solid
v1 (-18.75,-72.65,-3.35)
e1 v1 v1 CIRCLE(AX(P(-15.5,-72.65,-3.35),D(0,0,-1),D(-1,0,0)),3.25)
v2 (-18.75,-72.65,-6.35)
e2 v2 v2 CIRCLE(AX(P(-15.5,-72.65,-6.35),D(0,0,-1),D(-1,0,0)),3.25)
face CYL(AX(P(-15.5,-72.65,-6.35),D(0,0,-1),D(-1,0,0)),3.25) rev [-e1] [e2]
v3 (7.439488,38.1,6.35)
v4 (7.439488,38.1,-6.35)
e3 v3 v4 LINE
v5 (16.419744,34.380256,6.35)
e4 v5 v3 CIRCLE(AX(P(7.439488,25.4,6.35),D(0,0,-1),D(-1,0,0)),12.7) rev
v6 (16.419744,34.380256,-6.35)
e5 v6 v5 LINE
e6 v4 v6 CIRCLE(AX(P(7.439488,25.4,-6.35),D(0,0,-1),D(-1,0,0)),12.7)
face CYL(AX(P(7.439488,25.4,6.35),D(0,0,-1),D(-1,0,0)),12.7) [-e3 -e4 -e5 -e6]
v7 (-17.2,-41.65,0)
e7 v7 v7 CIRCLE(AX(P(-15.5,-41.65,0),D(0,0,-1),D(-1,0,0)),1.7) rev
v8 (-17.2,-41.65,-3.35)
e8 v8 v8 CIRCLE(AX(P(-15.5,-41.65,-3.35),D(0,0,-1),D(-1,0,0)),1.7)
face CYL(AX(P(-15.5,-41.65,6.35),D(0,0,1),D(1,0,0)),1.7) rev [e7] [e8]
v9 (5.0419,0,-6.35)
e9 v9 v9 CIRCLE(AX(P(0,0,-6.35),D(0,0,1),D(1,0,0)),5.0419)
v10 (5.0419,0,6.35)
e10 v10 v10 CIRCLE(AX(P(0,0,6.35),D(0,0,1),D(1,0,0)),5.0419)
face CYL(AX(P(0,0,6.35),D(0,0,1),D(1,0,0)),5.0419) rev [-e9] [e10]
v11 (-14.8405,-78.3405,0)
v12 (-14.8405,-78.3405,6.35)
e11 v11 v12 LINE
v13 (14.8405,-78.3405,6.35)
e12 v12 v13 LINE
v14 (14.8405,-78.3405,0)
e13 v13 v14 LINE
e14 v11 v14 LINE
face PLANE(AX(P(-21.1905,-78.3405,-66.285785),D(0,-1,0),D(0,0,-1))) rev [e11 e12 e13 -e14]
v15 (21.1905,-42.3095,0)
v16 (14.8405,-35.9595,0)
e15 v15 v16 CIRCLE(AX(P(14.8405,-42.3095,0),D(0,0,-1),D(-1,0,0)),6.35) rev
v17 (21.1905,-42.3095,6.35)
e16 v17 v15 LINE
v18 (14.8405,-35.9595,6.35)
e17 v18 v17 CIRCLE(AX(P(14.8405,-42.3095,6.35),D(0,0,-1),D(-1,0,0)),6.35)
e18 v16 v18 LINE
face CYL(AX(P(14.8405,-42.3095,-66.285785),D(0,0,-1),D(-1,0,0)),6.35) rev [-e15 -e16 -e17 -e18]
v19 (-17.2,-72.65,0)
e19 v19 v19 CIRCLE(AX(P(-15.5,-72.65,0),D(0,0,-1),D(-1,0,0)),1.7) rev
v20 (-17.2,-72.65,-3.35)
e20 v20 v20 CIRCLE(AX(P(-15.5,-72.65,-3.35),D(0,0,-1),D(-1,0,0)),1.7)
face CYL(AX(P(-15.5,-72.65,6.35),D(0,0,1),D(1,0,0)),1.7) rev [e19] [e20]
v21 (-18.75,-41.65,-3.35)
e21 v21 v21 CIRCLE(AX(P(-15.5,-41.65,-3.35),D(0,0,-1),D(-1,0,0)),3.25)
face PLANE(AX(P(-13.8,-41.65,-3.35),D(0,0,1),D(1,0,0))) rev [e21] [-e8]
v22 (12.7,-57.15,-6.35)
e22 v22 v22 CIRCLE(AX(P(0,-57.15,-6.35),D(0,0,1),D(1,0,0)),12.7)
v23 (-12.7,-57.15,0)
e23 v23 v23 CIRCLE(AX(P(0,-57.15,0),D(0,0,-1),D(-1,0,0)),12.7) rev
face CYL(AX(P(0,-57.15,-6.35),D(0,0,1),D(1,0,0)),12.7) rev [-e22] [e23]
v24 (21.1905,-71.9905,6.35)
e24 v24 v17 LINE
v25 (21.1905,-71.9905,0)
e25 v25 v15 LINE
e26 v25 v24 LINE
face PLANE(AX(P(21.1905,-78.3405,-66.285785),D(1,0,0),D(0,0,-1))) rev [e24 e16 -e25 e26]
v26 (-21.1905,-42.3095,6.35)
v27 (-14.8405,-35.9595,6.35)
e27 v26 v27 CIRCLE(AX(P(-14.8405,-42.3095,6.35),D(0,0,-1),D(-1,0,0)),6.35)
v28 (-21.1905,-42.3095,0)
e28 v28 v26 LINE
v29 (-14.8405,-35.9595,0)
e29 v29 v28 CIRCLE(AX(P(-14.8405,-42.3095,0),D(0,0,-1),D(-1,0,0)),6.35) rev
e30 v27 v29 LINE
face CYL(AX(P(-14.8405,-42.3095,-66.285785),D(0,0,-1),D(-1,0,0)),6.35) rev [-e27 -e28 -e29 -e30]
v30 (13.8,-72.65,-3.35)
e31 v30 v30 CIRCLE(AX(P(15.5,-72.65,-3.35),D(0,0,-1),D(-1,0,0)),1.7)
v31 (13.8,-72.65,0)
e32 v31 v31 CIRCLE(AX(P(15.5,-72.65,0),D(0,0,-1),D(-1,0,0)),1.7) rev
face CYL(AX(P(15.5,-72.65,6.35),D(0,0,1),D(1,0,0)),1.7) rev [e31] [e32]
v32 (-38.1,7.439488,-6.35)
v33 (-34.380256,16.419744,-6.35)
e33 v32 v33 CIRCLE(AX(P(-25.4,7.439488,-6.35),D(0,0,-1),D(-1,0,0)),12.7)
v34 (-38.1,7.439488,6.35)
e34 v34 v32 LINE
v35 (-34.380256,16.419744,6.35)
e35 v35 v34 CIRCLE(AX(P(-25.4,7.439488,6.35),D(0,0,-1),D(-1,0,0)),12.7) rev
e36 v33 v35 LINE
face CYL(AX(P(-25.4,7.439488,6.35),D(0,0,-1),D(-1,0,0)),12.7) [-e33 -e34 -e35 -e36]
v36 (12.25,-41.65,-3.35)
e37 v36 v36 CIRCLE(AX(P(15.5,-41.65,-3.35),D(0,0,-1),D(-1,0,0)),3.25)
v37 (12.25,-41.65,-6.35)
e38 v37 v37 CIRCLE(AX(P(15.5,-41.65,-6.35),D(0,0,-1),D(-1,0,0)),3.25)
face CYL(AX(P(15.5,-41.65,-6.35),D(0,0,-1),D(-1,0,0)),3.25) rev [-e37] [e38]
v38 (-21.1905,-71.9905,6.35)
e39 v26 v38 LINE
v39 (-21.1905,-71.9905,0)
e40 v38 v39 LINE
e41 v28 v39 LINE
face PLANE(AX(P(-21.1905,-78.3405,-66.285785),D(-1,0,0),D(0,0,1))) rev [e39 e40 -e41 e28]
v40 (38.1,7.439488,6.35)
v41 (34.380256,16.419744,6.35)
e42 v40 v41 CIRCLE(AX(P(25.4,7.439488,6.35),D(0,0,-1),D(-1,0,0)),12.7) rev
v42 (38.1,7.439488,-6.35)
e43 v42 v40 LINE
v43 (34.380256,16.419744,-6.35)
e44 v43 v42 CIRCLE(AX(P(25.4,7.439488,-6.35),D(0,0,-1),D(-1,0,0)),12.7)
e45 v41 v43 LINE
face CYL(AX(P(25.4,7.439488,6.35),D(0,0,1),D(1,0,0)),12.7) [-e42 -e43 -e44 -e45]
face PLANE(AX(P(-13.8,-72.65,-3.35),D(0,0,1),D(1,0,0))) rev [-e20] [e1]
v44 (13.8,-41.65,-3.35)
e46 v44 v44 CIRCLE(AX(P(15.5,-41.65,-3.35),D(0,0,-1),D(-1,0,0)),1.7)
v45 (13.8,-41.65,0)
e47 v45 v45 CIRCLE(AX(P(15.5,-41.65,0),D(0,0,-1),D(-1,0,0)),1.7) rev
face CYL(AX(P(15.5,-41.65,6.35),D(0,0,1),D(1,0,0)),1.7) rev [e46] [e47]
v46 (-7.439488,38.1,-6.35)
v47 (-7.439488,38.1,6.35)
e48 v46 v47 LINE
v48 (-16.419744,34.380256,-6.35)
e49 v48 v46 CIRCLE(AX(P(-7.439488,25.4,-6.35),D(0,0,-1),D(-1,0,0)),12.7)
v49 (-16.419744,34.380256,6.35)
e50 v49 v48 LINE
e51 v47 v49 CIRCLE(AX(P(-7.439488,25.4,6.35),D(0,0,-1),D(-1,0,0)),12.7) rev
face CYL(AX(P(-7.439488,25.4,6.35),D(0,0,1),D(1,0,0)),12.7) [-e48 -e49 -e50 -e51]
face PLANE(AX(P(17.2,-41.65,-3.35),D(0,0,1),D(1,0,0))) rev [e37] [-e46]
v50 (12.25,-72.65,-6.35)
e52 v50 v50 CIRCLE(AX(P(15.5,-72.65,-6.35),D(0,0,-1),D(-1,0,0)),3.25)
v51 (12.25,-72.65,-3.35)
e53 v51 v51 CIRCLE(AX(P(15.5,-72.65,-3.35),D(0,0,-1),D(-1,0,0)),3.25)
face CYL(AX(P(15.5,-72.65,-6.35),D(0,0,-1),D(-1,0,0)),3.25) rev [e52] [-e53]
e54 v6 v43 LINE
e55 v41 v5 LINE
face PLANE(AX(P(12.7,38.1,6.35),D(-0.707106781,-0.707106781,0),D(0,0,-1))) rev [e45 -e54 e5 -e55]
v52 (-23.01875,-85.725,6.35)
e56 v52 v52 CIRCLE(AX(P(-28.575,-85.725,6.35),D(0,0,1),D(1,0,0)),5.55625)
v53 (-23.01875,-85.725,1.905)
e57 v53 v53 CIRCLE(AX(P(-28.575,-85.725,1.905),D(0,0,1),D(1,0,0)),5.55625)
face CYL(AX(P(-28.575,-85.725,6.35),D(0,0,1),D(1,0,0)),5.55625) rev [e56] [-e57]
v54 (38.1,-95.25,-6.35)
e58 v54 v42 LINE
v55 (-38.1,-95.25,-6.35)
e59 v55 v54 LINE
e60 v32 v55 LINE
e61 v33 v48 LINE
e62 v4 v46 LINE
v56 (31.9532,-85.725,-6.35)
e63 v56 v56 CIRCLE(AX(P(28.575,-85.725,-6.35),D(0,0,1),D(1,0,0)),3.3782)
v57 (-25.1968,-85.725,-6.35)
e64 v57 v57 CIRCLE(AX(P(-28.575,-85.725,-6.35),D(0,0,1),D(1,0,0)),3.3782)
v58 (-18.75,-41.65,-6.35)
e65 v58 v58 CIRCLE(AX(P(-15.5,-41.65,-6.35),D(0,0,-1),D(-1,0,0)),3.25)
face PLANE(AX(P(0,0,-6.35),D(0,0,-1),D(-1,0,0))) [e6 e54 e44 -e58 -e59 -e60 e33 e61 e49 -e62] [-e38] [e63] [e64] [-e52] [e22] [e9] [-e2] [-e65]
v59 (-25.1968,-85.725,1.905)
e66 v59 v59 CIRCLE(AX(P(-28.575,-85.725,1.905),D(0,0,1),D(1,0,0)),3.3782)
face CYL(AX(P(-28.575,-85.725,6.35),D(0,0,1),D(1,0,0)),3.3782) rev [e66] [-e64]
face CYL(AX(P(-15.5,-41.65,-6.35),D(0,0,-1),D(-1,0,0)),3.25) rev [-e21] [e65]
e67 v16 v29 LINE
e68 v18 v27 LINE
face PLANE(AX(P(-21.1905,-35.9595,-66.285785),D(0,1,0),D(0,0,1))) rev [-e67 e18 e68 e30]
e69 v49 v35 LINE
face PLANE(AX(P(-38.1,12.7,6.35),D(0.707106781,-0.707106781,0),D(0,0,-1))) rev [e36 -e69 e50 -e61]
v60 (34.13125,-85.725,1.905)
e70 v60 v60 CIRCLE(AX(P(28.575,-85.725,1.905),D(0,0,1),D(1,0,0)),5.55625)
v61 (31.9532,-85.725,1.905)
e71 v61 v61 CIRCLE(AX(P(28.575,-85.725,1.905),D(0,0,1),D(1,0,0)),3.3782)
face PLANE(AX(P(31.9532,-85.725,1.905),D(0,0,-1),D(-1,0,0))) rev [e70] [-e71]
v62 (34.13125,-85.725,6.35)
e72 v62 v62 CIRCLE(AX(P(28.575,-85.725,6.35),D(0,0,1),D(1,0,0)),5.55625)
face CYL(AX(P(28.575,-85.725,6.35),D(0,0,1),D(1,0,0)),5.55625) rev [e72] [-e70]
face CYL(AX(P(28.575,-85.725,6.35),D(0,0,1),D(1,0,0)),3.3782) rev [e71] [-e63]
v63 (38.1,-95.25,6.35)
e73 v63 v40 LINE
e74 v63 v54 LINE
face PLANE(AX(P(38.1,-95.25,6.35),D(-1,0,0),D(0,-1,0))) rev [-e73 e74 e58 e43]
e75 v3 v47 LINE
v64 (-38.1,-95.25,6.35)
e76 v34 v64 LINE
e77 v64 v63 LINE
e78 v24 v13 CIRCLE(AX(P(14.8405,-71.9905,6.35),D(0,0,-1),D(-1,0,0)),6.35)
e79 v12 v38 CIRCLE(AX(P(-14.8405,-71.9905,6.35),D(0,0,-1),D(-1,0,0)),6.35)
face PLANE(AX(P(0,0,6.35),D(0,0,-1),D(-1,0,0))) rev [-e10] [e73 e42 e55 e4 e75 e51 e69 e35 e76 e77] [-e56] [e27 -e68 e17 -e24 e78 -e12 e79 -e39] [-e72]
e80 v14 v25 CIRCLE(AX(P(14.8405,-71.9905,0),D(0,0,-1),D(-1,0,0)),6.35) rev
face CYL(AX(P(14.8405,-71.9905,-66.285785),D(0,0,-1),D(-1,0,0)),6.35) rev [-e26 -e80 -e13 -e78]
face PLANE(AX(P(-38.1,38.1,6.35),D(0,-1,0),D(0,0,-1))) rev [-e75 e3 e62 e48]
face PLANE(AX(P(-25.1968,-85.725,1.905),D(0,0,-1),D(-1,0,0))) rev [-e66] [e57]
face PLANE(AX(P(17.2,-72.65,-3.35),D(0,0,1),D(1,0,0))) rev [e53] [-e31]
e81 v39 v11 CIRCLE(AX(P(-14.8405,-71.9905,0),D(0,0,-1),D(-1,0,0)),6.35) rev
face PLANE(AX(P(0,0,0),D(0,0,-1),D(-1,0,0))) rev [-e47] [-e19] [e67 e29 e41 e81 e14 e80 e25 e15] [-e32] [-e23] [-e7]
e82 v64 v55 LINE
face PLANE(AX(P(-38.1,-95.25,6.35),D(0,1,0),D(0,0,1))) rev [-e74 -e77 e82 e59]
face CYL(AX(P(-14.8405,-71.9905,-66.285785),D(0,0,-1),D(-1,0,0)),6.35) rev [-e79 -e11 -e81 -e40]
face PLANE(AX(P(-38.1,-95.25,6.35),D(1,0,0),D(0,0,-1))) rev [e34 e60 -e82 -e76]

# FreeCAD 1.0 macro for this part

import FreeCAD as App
import Part
import Sketcher

V = App.Vector
Q = App.Units.Quantity


def edges_at(feature, points):
    """Names of the edges that pass closest to the given points."""
    edges = feature.Shape.Edges
    near = lambda p: min(range(len(edges)), key=lambda i: edges[i].distToShape(Part.Vertex(*p))[0])
    return sorted({f"Edge{near(p) + 1}" for p in points})


def add_polygon(sketch, points):
    """Adds a closed chain of lines whose ends are joined by coincident constraints."""
    first, n = sketch.GeometryCount, len(points)
    for a, b in zip(points, points[1:] + points[:1]):
        sketch.addGeometry(Part.LineSegment(App.Vector(*a, 0), App.Vector(*b, 0)), False)
    for i in range(n):
        sketch.addConstraint(Sketcher.Constraint("Coincident", first + i, 2, first + (i + 1) % n, 1))

doc = App.newDocument("Part")
params = doc.addObject("Spreadsheet::Sheet", "Params")
for row, (alias, value) in enumerate([
    ("sketch1_width", "3 in"),
    ("sketch1_height", "5.25 in"),
    ("pad1_length", "0.5 in"),
    ("sketch2_diameter", "0.397 in"),
    ("hole_diameter", "0.397 in"),
    ("hole2_diameter", "3.4 mm"),
    ("sketch4_diameter", "1 in"),
    ("pocket2_length", "0.25 in"),
    ("chamfer_size", "1 in"),
    ("sketch6_diameter", "0.266 in"),
    ("hole3_diameter", "0.266 in"),
    ("hole3_cbore_diameter", "0.4375 in"),
    ("hole3_cbore_depth", "0.175 in"),
    ("hole4_diameter", "3.4 mm"),
    ("hole4_cbore_diameter", "6.5 mm"),
    ("hole4_cbore_depth", "3 mm"),
    ("fillet_radius", "0.25 in"),
    ("fillet2_radius", "0.5 in"),
], start=1):
    params.set(f"A{row}", alias)
    params.set(f"B{row}", "=" + value)
    params.setAlias(f"B{row}", alias)

body = doc.addObject("PartDesign::Body", "Body")

# Sketch on XY plane
sketch1 = doc.addObject("Sketcher::SketchObject", "Sketch")
body.addObject(sketch1)
sketch1.AttachmentSupport = (doc.XY_Plane, [""])
sketch1.MapMode = "FlatFace"
add_polygon(sketch1, [(-38, 38), (-38, -95), (38, -95), (38, 38)])  # lines 0-3
sketch1.addConstraint(Sketcher.Constraint("Vertical", 0))
sketch1.addConstraint(Sketcher.Constraint("Horizontal", 1))
sketch1.addConstraint(Sketcher.Constraint("Vertical", 2))
sketch1.addConstraint(Sketcher.Constraint("Horizontal", 3))
sketch1.addConstraint(Sketcher.Constraint("DistanceX", 1, 1, 1, 2, Q("3 in")))
sketch1.addConstraint(Sketcher.Constraint("DistanceY", 0, 2, 0, 1, Q("5.25 in")))
sketch1.addConstraint(Sketcher.Constraint("DistanceX", 0, 2, -1, 1, Q("1.5 in")))
sketch1.addConstraint(Sketcher.Constraint("DistanceY", -1, 1, 2, 2, Q("1.5 in")))
sketch1.setExpression("Constraints[8]", "Params.sketch1_width")
sketch1.setExpression("Constraints[9]", "Params.sketch1_height")
pad1 = doc.addObject("PartDesign::Pad", "Pad")
body.addObject(pad1)
pad1.Profile = sketch1
pad1.setExpression("Length", "Params.pad1_length")
pad1.Midplane = True

# Sketch on XY plane
sketch2 = doc.addObject("Sketcher::SketchObject", "Sketch001")
body.addObject(sketch2)
sketch2.AttachmentSupport = (doc.XY_Plane, [""])
sketch2.MapMode = "FlatFace"
sketch2.AttachmentOffset = App.Placement(V(0, 0, 0.25 * 25.4), App.Rotation())
sketch2.addGeometry(Part.Circle(V(0, 0, 0), V(0, 0, 1), 5), False)
sketch2.addConstraint(Sketcher.Constraint("Coincident", 0, 3, -1, 1))
sketch2.addConstraint(Sketcher.Constraint("Diameter", 0, Q("0.397 in")))
sketch2.setExpression("Constraints[1]", "Params.sketch2_diameter")
doc.recompute()
hole = doc.addObject("PartDesign::Hole", "Hole")
body.addObject(hole)
hole.Profile = sketch2
hole.ThreadType = "None"
hole.setExpression("Diameter", "Params.hole_diameter")
hole.DepthType = "ThroughAll"

# Sketch on XY plane
sketch3 = doc.addObject("Sketcher::SketchObject", "Sketch002")
body.addObject(sketch3)
sketch3.AttachmentSupport = (doc.XY_Plane, [""])
sketch3.MapMode = "FlatFace"
sketch3.AttachmentOffset = App.Placement(V(0, 0, 0.25 * 25.4), App.Rotation())
sketch3.addGeometry(Part.Circle(V(-15.5, -41.6, 0), V(0, 0, 1), 1.7), False)
sketch3.addGeometry(Part.Circle(V(15.5, -41.6, 0), V(0, 0, 1), 1.7), False)
sketch3.addGeometry(Part.Circle(V(15.5, -72.7, 0), V(0, 0, 1), 1.7), False)
sketch3.addGeometry(Part.Circle(V(-15.5, -72.7, 0), V(0, 0, 1), 1.7), False)
sketch3.addConstraint(Sketcher.Constraint("Equal", 0, 1))
sketch3.addConstraint(Sketcher.Constraint("Equal", 1, 2))
sketch3.addConstraint(Sketcher.Constraint("Equal", 2, 3))
sketch3.addConstraint(Sketcher.Constraint("Symmetric", 0, 3, 1, 3, -2))
sketch3.addConstraint(Sketcher.Constraint("Symmetric", 2, 3, 3, 3, -2))
sketch3.addConstraint(Sketcher.Constraint("Vertical", 1, 3, 2, 3))
sketch3.addConstraint(Sketcher.Constraint("Diameter", 0, 3.4))
sketch3.addConstraint(Sketcher.Constraint("DistanceX", 0, 3, -1, 1, 15.5))
sketch3.addConstraint(Sketcher.Constraint("DistanceY", 0, 3, -1, 1, 41.65))
sketch3.addConstraint(Sketcher.Constraint("DistanceY", 2, 3, -1, 1, 72.65))
doc.recompute()
hole2 = doc.addObject("PartDesign::Hole", "Hole001")
body.addObject(hole2)
hole2.Profile = sketch3
hole2.ThreadType = "None"
hole2.setExpression("Diameter", "Params.hole2_diameter")
hole2.DepthType = "ThroughAll"

# Sketch on XY plane
sketch4 = doc.addObject("Sketcher::SketchObject", "Sketch003")
body.addObject(sketch4)
sketch4.AttachmentSupport = (doc.XY_Plane, [""])
sketch4.MapMode = "FlatFace"
sketch4.AttachmentOffset = App.Placement(V(0, 0, 0.25 * 25.4), App.Rotation())
sketch4.addGeometry(Part.Circle(V(0, -57, 0), V(0, 0, 1), 13), False)
sketch4.addConstraint(Sketcher.Constraint("PointOnObject", 0, 3, -2))
sketch4.addConstraint(Sketcher.Constraint("Diameter", 0, Q("1 in")))
sketch4.addConstraint(Sketcher.Constraint("DistanceY", 0, 3, -1, 1, Q("2.25 in")))
sketch4.setExpression("Constraints[1]", "Params.sketch4_diameter")
pocket1 = doc.addObject("PartDesign::Pocket", "Pocket")
body.addObject(pocket1)
pocket1.Profile = sketch4
pocket1.Type = "ThroughAll"

# Sketch on XY plane
sketch5 = doc.addObject("Sketcher::SketchObject", "Sketch004")
body.addObject(sketch5)
sketch5.AttachmentSupport = (doc.XY_Plane, [""])
sketch5.MapMode = "FlatFace"
sketch5.AttachmentOffset = App.Placement(V(0, 0, 0.25 * 25.4), App.Rotation())
add_polygon(sketch5, [(-21, -36), (-21, -78), (21, -78), (21, -36)])  # lines 0-3
sketch5.addConstraint(Sketcher.Constraint("Vertical", 0))
sketch5.addConstraint(Sketcher.Constraint("Horizontal", 1))
sketch5.addConstraint(Sketcher.Constraint("Vertical", 2))
sketch5.addConstraint(Sketcher.Constraint("Horizontal", 3))
sketch5.addConstraint(Sketcher.Constraint("Equal", 3, 0))
sketch5.addConstraint(Sketcher.Constraint("DistanceX", 1, 1, 1, 2, 42.381))
sketch5.addConstraint(Sketcher.Constraint("DistanceX", 0, 2, -1, 1, 21.1905))
sketch5.addConstraint(Sketcher.Constraint("DistanceY", 0, 2, -1, 1, 78.3405))
pocket2 = doc.addObject("PartDesign::Pocket", "Pocket001")
body.addObject(pocket2)
pocket2.Profile = sketch5
pocket2.setExpression("Length", "Params.pocket2_length")
doc.recompute()

chamfer = doc.addObject("PartDesign::Chamfer", "Chamfer")
body.addObject(chamfer)
chamfer.Base = (pocket2, edges_at(pocket2, [(-38.1, 38.1, 0), (38.1, 38.1, 0)]))
chamfer.setExpression("Size", "Params.chamfer_size")

# Sketch on XY plane
sketch6 = doc.addObject("Sketcher::SketchObject", "Sketch005")
body.addObject(sketch6)
sketch6.AttachmentSupport = (doc.XY_Plane, [""])
sketch6.MapMode = "FlatFace"
sketch6.AttachmentOffset = App.Placement(V(0, 0, 0.25 * 25.4), App.Rotation())
sketch6.addGeometry(Part.Circle(V(-28.6, -85.7, 0), V(0, 0, 1), 3.4), False)
sketch6.addGeometry(Part.Circle(V(28.6, -85.7, 0), V(0, 0, 1), 3.4), False)
sketch6.addConstraint(Sketcher.Constraint("Equal", 0, 1))
sketch6.addConstraint(Sketcher.Constraint("Symmetric", 0, 3, 1, 3, -2))
sketch6.addConstraint(Sketcher.Constraint("Diameter", 0, Q("0.266 in")))
sketch6.addConstraint(Sketcher.Constraint("DistanceX", 0, 3, 1, 3, Q("2.25 in")))
sketch6.addConstraint(Sketcher.Constraint("DistanceY", 0, 3, -1, 1, Q("3.375 in")))
sketch6.setExpression("Constraints[2]", "Params.sketch6_diameter")
doc.recompute()
hole3 = doc.addObject("PartDesign::Hole", "Hole002")
body.addObject(hole3)
hole3.Profile = sketch6
hole3.ThreadType = "None"
hole3.setExpression("Diameter", "Params.hole3_diameter")
hole3.DepthType = "ThroughAll"
hole3.HoleCutType = "Counterbore"
hole3.setExpression("HoleCutDiameter", "Params.hole3_cbore_diameter")
hole3.setExpression("HoleCutDepth", "Params.hole3_cbore_depth")

# Sketch on XY plane
sketch7 = doc.addObject("Sketcher::SketchObject", "Sketch006")
body.addObject(sketch7)
sketch7.AttachmentSupport = (doc.XY_Plane, [""])
sketch7.MapMode = "FlatFace"
sketch7.AttachmentOffset = App.Placement(V(0, 0, -0.25 * 25.4), App.Rotation())
sketch7.addGeometry(Part.Circle(V(15.5, -41.6, 0), V(0, 0, 1), 1.7), False)
sketch7.addGeometry(Part.Circle(V(-15.5, -41.6, 0), V(0, 0, 1), 1.7), False)
sketch7.addGeometry(Part.Circle(V(-15.5, -72.7, 0), V(0, 0, 1), 1.7), False)
sketch7.addGeometry(Part.Circle(V(15.5, -72.7, 0), V(0, 0, 1), 1.7), False)
sketch7.addConstraint(Sketcher.Constraint("Equal", 0, 1))
sketch7.addConstraint(Sketcher.Constraint("Equal", 1, 2))
sketch7.addConstraint(Sketcher.Constraint("Equal", 2, 3))
sketch7.addConstraint(Sketcher.Constraint("Symmetric", 0, 3, 1, 3, -2))
sketch7.addConstraint(Sketcher.Constraint("Symmetric", 2, 3, 3, 3, -2))
sketch7.addConstraint(Sketcher.Constraint("Vertical", 1, 3, 2, 3))
sketch7.addConstraint(Sketcher.Constraint("Diameter", 0, 3.4))
sketch7.addConstraint(Sketcher.Constraint("DistanceX", -1, 1, 0, 3, 15.5))
sketch7.addConstraint(Sketcher.Constraint("DistanceY", 0, 3, -1, 1, 41.65))
sketch7.addConstraint(Sketcher.Constraint("DistanceY", 2, 3, -1, 1, 72.65))
doc.recompute()
hole4 = doc.addObject("PartDesign::Hole", "Hole003")
body.addObject(hole4)
hole4.Profile = sketch7
hole4.ThreadType = "None"
hole4.setExpression("Diameter", "Params.hole4_diameter")
hole4.DepthType = "ThroughAll"
hole4.HoleCutType = "Counterbore"
hole4.setExpression("HoleCutDiameter", "Params.hole4_cbore_diameter")
hole4.setExpression("HoleCutDepth", "Params.hole4_cbore_depth")
hole4.Reversed = True
doc.recompute()

fillet = doc.addObject("PartDesign::Fillet", "Fillet")
body.addObject(fillet)
fillet.Base = (hole4, edges_at(hole4, [
    (-21.191, -35.959, 3.175),
    (-21.191, -78.341, 3.175),
    (21.191, -78.341, 3.175),
    (21.191, -35.959, 3.175),
]))
fillet.setExpression("Radius", "Params.fillet_radius")
doc.recompute()

fillet2 = doc.addObject("PartDesign::Fillet", "Fillet001")
body.addObject(fillet2)
fillet2.Base = (fillet, edges_at(fillet, [
    (-12.7, 38.1, 0),
    (12.7, 38.1, 0),
    (38.1, 12.7, 0),
    (-38.1, 12.7, 0),
]))
fillet2.setExpression("Radius", "Params.fillet2_radius")

doc.recompute()
